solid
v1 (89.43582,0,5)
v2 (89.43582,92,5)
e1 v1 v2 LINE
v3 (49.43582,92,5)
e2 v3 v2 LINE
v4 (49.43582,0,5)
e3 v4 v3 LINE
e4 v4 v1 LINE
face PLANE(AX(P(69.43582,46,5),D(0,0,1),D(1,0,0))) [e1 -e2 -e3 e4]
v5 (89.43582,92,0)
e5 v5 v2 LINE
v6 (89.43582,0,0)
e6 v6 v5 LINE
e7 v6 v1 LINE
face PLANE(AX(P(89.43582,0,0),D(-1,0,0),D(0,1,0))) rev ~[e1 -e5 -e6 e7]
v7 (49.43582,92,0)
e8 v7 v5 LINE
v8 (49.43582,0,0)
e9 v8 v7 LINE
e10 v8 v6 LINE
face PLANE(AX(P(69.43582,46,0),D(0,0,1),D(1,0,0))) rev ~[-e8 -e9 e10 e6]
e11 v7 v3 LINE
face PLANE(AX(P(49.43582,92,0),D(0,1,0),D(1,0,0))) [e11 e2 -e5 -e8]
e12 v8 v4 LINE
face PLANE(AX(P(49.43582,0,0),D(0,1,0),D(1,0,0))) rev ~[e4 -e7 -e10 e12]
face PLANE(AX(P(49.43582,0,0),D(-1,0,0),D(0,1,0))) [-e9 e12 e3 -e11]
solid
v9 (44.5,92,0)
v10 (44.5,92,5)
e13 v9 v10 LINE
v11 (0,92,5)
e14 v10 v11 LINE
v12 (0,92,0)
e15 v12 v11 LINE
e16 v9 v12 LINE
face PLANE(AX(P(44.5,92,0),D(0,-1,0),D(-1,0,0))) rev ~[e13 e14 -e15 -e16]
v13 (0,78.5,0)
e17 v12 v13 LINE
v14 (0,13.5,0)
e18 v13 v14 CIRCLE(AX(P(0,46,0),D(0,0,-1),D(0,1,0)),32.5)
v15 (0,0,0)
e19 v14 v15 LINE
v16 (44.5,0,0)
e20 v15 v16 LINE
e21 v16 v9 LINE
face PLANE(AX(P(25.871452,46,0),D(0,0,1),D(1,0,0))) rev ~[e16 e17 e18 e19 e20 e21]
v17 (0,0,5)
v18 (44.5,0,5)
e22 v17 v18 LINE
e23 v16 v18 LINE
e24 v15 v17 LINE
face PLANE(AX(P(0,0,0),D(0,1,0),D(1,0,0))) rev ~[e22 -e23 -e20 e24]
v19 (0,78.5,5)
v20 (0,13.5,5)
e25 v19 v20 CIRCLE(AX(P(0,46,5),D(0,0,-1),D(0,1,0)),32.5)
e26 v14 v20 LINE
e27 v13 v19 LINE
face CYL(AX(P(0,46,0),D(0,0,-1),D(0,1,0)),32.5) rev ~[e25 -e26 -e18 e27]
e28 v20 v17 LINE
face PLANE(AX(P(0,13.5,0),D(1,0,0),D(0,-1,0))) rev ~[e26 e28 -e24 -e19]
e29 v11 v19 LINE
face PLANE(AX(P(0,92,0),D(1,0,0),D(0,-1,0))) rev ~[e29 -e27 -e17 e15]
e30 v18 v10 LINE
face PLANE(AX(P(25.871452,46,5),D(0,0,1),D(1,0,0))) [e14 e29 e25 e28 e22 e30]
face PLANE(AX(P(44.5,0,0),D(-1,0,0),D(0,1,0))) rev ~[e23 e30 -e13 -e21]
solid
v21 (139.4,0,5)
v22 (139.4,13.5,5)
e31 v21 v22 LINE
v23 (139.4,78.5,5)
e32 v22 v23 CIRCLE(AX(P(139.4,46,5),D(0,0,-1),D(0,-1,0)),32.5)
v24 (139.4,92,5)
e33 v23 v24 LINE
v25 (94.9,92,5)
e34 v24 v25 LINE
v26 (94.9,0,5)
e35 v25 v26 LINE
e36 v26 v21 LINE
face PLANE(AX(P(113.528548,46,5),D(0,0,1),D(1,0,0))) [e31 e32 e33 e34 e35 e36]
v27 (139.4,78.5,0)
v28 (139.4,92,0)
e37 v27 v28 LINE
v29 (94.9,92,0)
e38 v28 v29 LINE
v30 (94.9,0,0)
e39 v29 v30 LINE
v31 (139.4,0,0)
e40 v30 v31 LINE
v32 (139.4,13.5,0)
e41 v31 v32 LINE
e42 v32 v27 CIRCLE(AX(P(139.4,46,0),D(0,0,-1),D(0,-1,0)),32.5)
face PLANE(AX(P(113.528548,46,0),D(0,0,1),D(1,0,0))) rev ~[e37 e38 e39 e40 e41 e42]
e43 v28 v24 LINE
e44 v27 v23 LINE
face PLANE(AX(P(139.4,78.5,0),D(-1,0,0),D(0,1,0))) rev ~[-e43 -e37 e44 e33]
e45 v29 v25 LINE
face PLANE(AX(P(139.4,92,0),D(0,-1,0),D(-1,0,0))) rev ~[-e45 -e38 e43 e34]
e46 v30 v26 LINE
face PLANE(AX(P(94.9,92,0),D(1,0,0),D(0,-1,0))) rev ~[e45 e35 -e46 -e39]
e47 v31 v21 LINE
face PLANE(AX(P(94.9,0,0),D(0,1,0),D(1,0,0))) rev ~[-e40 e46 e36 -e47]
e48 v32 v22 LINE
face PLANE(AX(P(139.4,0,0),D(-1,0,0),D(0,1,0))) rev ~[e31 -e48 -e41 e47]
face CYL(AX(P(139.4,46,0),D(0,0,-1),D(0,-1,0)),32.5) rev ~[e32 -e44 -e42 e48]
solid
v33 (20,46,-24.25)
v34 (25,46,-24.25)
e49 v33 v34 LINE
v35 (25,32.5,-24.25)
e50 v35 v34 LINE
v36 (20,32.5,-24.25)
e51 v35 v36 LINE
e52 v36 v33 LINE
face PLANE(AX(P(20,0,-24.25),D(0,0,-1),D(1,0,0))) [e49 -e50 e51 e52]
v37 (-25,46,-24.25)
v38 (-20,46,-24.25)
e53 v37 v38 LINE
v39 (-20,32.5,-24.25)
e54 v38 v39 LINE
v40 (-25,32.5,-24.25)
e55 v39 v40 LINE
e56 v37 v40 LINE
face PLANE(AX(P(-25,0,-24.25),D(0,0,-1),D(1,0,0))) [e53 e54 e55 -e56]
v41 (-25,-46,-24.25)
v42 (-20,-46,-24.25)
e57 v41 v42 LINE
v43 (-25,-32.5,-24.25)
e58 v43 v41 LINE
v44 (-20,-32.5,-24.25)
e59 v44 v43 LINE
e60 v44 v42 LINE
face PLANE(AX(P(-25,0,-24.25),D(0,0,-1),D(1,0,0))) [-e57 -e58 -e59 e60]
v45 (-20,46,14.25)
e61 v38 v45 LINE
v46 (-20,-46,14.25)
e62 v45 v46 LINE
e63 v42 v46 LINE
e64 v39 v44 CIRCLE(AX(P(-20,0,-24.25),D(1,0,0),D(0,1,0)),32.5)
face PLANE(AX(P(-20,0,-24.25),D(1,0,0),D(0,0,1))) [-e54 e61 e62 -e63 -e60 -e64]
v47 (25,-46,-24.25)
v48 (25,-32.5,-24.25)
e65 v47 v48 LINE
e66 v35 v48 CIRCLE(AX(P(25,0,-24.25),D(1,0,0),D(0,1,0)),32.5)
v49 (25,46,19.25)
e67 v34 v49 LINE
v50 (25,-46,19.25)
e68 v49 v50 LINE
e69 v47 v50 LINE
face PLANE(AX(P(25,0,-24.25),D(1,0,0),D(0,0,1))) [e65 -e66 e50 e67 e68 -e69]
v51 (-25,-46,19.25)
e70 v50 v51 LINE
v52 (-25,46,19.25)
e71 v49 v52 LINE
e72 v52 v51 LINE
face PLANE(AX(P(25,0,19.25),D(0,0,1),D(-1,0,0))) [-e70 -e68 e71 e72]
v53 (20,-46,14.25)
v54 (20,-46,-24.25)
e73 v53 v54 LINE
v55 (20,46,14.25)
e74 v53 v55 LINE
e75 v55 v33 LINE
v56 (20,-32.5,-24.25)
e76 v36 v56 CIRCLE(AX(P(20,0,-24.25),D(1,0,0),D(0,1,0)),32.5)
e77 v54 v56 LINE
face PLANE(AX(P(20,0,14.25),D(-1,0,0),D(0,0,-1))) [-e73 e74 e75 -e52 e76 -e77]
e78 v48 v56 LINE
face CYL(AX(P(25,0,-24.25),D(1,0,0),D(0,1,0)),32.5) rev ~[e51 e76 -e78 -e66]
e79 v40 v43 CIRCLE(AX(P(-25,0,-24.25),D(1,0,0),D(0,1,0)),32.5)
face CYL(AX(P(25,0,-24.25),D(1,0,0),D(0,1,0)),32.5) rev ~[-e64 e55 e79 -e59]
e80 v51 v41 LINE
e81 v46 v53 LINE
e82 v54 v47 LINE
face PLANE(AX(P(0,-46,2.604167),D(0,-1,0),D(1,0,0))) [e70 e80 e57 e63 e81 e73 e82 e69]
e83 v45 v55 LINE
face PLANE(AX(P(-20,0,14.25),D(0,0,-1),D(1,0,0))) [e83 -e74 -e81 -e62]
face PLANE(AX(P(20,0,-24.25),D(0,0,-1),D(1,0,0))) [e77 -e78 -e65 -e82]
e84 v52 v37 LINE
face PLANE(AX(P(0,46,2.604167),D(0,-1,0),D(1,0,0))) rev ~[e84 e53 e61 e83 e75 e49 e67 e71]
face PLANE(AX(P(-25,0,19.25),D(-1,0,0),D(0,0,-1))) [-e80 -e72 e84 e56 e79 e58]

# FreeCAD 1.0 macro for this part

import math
import FreeCAD as App
import Part
import Sketcher
Q = App.Units.Quantity


def add_polygon(sketch, points):
    """Adds a closed chain of lines whose ends are joined by coincident constraints."""
    first, n = sketch.GeometryCount, len(points)
    for a, b in zip(points, points[1:] + points[:1]):
        sketch.addGeometry(Part.LineSegment(App.Vector(*a, 0), App.Vector(*b, 0)), False)
    for i in range(n):
        sketch.addConstraint(Sketcher.Constraint("Coincident", first + i, 2, first + (i + 1) % n, 1))

doc = App.newDocument("Part")
params = doc.addObject("Spreadsheet::Sheet", "Params")
for row, (alias, value) in enumerate([
    ("sketch1_width", "50 mm"),
    ("sketch1_width2", "5 mm"),
    ("sketch1_height", "43.5 mm"),
    ("sketch1_height2", "38.5 mm"),
    ("pad1_length", "92 mm"),
    ("sketch2_radius", "32.5 mm"),
    ("pocket1_length", "54 mm"),
    ("sketch3_radius", "32.5 mm"),
    ("sketch3_width", "40 mm"),
    ("sketch3_height", "92 mm"),
    ("sketch3_width2", "44.5 mm"),
    ("pad2_length", "5 mm"),
], start=1):
    params.set(f"A{row}", alias)
    params.set(f"B{row}", "=" + value)
    params.setAlias(f"B{row}", alias)

body = doc.addObject("PartDesign::Body", "Body")

# Sketch on XZ plane
sketch1 = body.newObject("Sketcher::SketchObject", "Sketch")
sketch1.AttachmentSupport = (doc.getObject("XZ_Plane"), [""])
sketch1.MapMode = "FlatFace"
add_polygon(sketch1, [(25, -24), (25, 19), (-25, 19), (-25, -24), (-20, -24), (-20, 14), (20, 14), (20, -24)])  # lines 0-7
sketch1.addConstraint([
    Sketcher.Constraint("Vertical", 0),
    Sketcher.Constraint("Horizontal", 1),
    Sketcher.Constraint("Vertical", 2),
    Sketcher.Constraint("Horizontal", 3),
    Sketcher.Constraint("Vertical", 4),
    Sketcher.Constraint("Horizontal", 5),
    Sketcher.Constraint("Vertical", 6),
    Sketcher.Constraint("Horizontal", 7),
    Sketcher.Constraint("Symmetric", 3, 2, 6, 2, -2),
    Sketcher.Constraint("Equal", 3, 7),
    Sketcher.Constraint("DistanceX", 1, 2, 1, 1, Q("50 mm")),
    Sketcher.Constraint("DistanceX", 3, 1, 3, 2, Q("5 mm")),
    Sketcher.Constraint("DistanceY", 0, 1, 0, 2, Q("43.5 mm")),
    Sketcher.Constraint("DistanceY", 4, 1, 4, 2, Q("38.5 mm")),
    Sketcher.Constraint("DistanceY", -1, 1, 0, 2, Q("19.25 mm")),
])
sketch1.setExpression("Constraints[18]", "Params.sketch1_width")
sketch1.setExpression("Constraints[19]", "Params.sketch1_width2")
sketch1.setExpression("Constraints[20]", "Params.sketch1_height")
sketch1.setExpression("Constraints[21]", "Params.sketch1_height2")
pad1 = body.newObject("PartDesign::Pad", "Pad")
pad1.Profile = sketch1
pad1.setExpression("Length", "Params.pad1_length")
pad1.Midplane = True

# Sketch on YZ plane
sketch2 = body.newObject("Sketcher::SketchObject", "Sketch001")
sketch2.AttachmentSupport = (doc.getObject("YZ_Plane"), [""])
sketch2.MapMode = "FlatFace"
sketch2.AttachmentOffset = App.Placement(App.Vector(0, 0, 25), App.Rotation())
sketch2.addGeometry([
    Part.LineSegment(App.Vector(-32, -24, 0), App.Vector(32, -24, 0)),
    Part.ArcOfCircle(Part.Circle(App.Vector(0, -24, 0), App.Vector(0, 0, 1), 32), math.radians(0), math.radians(180)),
], False)
sketch2.addConstraint([
    Sketcher.Constraint("Coincident", 0, 1, 1, 2),
    Sketcher.Constraint("Coincident", 1, 1, 0, 2),
    Sketcher.Constraint("Horizontal", 0),
    Sketcher.Constraint("PointOnObject", 1, 3, -2),
    Sketcher.Constraint("Horizontal", 1, 3, 0, 1),
    Sketcher.Constraint("Radius", 1, Q("32.5 mm")),
    Sketcher.Constraint("DistanceY", 1, 3, -1, 1, Q("24.25 mm")),
])
sketch2.setExpression("Constraints[5]", "Params.sketch2_radius")
pocket1 = body.newObject("PartDesign::Pocket", "Pocket")
pocket1.Profile = sketch2
pocket1.setExpression("Length", "Params.pocket1_length")
body2 = doc.addObject("PartDesign::Body", "Body001")
body2.AllowCompound = True

# Sketch on XY plane
sketch3 = body2.newObject("Sketcher::SketchObject", "Sketch002")
sketch3.AttachmentSupport = (doc.getObject("XY_Plane001"), [""])
sketch3.MapMode = "FlatFace"
sketch3.addGeometry(Part.LineSegment(App.Vector(0, 14, 0), App.Vector(0, 0, 0)), False)  # 0
sketch3.addGeometry(Part.LineSegment(App.Vector(0, 0, 0), App.Vector(44, 0, 0)), False)  # 1
sketch3.addGeometry(Part.LineSegment(App.Vector(44, 0, 0), App.Vector(44, 92, 0)), False)  # 2
sketch3.addGeometry(Part.LineSegment(App.Vector(44, 92, 0), App.Vector(0, 92, 0)), False)  # 3
sketch3.addGeometry(Part.LineSegment(App.Vector(0, 92, 0), App.Vector(0, 78, 0)), False)  # 4
sketch3.addGeometry(Part.ArcOfCircle(Part.Circle(App.Vector(0, 46, 0), App.Vector(0, 0, 1), 32), math.radians(-90), math.radians(90)), False)  # 5
sketch3.addGeometry(Part.LineSegment(App.Vector(95, 0, 0), App.Vector(139, 0, 0)), False)  # 6
sketch3.addGeometry(Part.LineSegment(App.Vector(139, 0, 0), App.Vector(139, 14, 0)), False)  # 7
sketch3.addGeometry(Part.ArcOfCircle(Part.Circle(App.Vector(139, 46, 0), App.Vector(0, 0, 1), 32), math.radians(90), math.radians(270)), False)  # 8
sketch3.addGeometry(Part.LineSegment(App.Vector(139, 78, 0), App.Vector(139, 92, 0)), False)  # 9
sketch3.addGeometry(Part.LineSegment(App.Vector(139, 92, 0), App.Vector(95, 92, 0)), False)  # 10
sketch3.addGeometry(Part.LineSegment(App.Vector(95, 92, 0), App.Vector(95, 0, 0)), False)  # 11
add_polygon(sketch3, [(49, 92), (49, 0), (89, 0), (89, 92)])  # lines 12-15
sketch3.addConstraint([
    Sketcher.Constraint("Coincident", 0, 2, 1, 1),
    Sketcher.Constraint("Coincident", 1, 2, 2, 1),
    Sketcher.Constraint("Coincident", 2, 2, 3, 1),
    Sketcher.Constraint("Coincident", 3, 2, 4, 1),
    Sketcher.Constraint("Coincident", 4, 2, 5, 2),
    Sketcher.Constraint("Coincident", 5, 1, 0, 1),
    Sketcher.Constraint("Coincident", 6, 2, 7, 1),
    Sketcher.Constraint("Coincident", 7, 2, 8, 2),
    Sketcher.Constraint("Coincident", 8, 1, 9, 1),
    Sketcher.Constraint("Coincident", 9, 2, 10, 1),
    Sketcher.Constraint("Coincident", 10, 2, 11, 1),
    Sketcher.Constraint("Coincident", 11, 2, 6, 1),
    Sketcher.Constraint("Vertical", 0),
    Sketcher.Constraint("Horizontal", 1),
    Sketcher.Constraint("Vertical", 2),
    Sketcher.Constraint("Horizontal", 3),
    Sketcher.Constraint("Vertical", 4),
    Sketcher.Constraint("Horizontal", 6),
    Sketcher.Constraint("Vertical", 7),
    Sketcher.Constraint("Vertical", 9),
    Sketcher.Constraint("Horizontal", 10),
    Sketcher.Constraint("Vertical", 11),
    Sketcher.Constraint("Vertical", 12),
    Sketcher.Constraint("Horizontal", 13),
    Sketcher.Constraint("Vertical", 14),
    Sketcher.Constraint("Horizontal", 15),
    Sketcher.Constraint("Coincident", 0, 2, -1, 1),
    Sketcher.Constraint("Equal", 5, 8),
    Sketcher.Constraint("PointOnObject", 5, 3, -2),
    Sketcher.Constraint("PointOnObject", 3, 2, -2),
    Sketcher.Constraint("PointOnObject", 6, 2, -1),
    Sketcher.Constraint("PointOnObject", 12, 2, -1),
    Sketcher.Constraint("Horizontal", 5, 3, 8, 3),
    Sketcher.Constraint("Horizontal", 3, 2, 9, 2),
    Sketcher.Constraint("Horizontal", 10, 2, 14, 2),
    Sketcher.Constraint("Vertical", 8, 3, 6, 2),
    Sketcher.Constraint("Vertical", 7, 2, 8, 1),
    Sketcher.Constraint("Equal", 3, 6),
    Sketcher.Constraint("Equal", 0, 4),
    Sketcher.Constraint("Radius", 5, Q("32.5 mm")),
    Sketcher.Constraint("DistanceX", 13, 1, 13, 2, Q("40 mm")),
    Sketcher.Constraint("DistanceY", 2, 1, 2, 2, Q("92 mm")),
    Sketcher.Constraint("DistanceX", 1, 1, 1, 2, Q("44.5 mm")),
    Sketcher.Constraint("DistanceX", -1, 1, 8, 3, Q("139.4 mm")),
    Sketcher.Constraint("DistanceX", -1, 1, 12, 2, Q("49.43582 mm")),
])
sketch3.setExpression("Constraints[43]", "Params.sketch3_radius")
sketch3.setExpression("Constraints[44]", "Params.sketch3_width")
sketch3.setExpression("Constraints[45]", "Params.sketch3_height")
sketch3.setExpression("Constraints[46]", "Params.sketch3_width2")
pad2 = body2.newObject("PartDesign::Pad", "Pad001")
pad2.Profile = sketch3
pad2.setExpression("Length", "Params.pad2_length")

doc.recompute()
